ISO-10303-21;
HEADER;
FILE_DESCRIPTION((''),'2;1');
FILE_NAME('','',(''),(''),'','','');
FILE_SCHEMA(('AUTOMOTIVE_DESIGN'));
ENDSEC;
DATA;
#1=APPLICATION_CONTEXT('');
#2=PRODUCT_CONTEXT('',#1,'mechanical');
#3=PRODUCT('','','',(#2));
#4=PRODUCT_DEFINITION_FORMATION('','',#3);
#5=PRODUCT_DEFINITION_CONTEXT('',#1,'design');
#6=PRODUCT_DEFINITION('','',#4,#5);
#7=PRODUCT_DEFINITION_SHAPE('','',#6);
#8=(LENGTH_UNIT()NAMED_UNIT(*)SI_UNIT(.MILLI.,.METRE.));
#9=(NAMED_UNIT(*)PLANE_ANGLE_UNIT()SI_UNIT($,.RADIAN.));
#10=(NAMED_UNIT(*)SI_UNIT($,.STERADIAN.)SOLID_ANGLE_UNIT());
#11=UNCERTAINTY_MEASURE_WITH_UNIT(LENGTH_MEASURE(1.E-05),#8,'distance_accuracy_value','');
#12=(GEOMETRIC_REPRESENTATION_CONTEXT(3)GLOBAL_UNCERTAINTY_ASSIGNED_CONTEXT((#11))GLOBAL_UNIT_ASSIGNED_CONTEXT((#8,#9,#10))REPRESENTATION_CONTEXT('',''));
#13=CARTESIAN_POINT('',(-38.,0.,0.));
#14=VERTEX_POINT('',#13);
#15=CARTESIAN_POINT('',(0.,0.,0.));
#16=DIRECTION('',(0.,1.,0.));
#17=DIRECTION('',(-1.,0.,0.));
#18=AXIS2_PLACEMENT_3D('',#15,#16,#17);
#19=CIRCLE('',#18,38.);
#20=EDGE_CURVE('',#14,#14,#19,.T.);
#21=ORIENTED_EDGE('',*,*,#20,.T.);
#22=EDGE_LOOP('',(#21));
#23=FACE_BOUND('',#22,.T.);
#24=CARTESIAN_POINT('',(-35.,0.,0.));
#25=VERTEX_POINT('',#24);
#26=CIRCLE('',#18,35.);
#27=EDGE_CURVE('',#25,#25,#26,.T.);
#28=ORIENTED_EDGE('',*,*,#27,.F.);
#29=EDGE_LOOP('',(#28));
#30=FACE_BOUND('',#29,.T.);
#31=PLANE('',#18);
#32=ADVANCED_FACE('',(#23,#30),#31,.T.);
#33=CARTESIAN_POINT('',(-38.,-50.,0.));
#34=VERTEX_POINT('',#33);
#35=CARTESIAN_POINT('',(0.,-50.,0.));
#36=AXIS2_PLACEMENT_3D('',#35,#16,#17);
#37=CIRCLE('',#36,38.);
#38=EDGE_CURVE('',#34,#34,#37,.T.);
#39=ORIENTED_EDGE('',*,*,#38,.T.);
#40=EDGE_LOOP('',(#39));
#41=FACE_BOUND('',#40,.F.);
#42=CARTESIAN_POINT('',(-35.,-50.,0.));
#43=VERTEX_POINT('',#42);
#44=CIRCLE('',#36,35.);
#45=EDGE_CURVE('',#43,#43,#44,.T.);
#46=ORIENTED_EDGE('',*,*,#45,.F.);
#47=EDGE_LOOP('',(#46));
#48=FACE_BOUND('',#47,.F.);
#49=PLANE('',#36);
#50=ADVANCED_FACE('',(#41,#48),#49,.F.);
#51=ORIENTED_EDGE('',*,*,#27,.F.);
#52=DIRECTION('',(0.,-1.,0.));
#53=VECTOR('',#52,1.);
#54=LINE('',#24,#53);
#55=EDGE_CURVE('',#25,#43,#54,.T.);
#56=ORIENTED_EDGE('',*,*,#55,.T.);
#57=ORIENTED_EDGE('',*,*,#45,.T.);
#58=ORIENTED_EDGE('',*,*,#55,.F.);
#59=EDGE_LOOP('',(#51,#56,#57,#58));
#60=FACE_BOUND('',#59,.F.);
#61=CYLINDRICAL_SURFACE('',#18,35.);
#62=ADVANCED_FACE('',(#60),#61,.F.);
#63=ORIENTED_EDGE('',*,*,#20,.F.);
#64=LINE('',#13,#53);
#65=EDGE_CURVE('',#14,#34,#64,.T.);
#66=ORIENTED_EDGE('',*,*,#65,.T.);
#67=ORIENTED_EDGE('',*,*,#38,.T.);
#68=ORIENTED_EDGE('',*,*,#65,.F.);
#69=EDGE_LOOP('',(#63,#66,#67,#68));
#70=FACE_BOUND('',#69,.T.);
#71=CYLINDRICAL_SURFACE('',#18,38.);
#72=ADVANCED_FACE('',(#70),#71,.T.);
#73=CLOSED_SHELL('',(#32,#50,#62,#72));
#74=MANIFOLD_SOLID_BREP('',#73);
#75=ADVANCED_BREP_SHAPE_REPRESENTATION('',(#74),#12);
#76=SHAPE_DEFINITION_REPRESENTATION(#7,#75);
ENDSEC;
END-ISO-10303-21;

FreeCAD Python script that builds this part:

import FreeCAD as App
import Part
import Sketcher

V = App.Vector

doc = App.newDocument("Part")
body = doc.addObject("PartDesign::Body", "Body")

# Sketch on XZ plane
sketch1 = doc.addObject("Sketcher::SketchObject", "Sketch")
body.addObject(sketch1)
sketch1.AttachmentSupport = (doc.XZ_Plane, [""])
sketch1.MapMode = "FlatFace"
sketch1.addGeometry([
    Part.Circle(V(0, 0, 0), V(0, 0, 1), 38),
    Part.Circle(V(0, 0, 0), V(0, 0, 1), 35),
], False)
sketch1.addConstraint([
    Sketcher.Constraint("Coincident", 0, 3, -1, 1),
    Sketcher.Constraint("Coincident", 1, 3, -1, 1),
    Sketcher.Constraint("Diameter", 0, 76.0),
    Sketcher.Constraint("Diameter", 1, 70.0),
])
pad1 = doc.addObject("PartDesign::Pad", "Pad")
body.addObject(pad1)
pad1.Profile = sketch1
pad1.Length = 50

doc.recompute()
